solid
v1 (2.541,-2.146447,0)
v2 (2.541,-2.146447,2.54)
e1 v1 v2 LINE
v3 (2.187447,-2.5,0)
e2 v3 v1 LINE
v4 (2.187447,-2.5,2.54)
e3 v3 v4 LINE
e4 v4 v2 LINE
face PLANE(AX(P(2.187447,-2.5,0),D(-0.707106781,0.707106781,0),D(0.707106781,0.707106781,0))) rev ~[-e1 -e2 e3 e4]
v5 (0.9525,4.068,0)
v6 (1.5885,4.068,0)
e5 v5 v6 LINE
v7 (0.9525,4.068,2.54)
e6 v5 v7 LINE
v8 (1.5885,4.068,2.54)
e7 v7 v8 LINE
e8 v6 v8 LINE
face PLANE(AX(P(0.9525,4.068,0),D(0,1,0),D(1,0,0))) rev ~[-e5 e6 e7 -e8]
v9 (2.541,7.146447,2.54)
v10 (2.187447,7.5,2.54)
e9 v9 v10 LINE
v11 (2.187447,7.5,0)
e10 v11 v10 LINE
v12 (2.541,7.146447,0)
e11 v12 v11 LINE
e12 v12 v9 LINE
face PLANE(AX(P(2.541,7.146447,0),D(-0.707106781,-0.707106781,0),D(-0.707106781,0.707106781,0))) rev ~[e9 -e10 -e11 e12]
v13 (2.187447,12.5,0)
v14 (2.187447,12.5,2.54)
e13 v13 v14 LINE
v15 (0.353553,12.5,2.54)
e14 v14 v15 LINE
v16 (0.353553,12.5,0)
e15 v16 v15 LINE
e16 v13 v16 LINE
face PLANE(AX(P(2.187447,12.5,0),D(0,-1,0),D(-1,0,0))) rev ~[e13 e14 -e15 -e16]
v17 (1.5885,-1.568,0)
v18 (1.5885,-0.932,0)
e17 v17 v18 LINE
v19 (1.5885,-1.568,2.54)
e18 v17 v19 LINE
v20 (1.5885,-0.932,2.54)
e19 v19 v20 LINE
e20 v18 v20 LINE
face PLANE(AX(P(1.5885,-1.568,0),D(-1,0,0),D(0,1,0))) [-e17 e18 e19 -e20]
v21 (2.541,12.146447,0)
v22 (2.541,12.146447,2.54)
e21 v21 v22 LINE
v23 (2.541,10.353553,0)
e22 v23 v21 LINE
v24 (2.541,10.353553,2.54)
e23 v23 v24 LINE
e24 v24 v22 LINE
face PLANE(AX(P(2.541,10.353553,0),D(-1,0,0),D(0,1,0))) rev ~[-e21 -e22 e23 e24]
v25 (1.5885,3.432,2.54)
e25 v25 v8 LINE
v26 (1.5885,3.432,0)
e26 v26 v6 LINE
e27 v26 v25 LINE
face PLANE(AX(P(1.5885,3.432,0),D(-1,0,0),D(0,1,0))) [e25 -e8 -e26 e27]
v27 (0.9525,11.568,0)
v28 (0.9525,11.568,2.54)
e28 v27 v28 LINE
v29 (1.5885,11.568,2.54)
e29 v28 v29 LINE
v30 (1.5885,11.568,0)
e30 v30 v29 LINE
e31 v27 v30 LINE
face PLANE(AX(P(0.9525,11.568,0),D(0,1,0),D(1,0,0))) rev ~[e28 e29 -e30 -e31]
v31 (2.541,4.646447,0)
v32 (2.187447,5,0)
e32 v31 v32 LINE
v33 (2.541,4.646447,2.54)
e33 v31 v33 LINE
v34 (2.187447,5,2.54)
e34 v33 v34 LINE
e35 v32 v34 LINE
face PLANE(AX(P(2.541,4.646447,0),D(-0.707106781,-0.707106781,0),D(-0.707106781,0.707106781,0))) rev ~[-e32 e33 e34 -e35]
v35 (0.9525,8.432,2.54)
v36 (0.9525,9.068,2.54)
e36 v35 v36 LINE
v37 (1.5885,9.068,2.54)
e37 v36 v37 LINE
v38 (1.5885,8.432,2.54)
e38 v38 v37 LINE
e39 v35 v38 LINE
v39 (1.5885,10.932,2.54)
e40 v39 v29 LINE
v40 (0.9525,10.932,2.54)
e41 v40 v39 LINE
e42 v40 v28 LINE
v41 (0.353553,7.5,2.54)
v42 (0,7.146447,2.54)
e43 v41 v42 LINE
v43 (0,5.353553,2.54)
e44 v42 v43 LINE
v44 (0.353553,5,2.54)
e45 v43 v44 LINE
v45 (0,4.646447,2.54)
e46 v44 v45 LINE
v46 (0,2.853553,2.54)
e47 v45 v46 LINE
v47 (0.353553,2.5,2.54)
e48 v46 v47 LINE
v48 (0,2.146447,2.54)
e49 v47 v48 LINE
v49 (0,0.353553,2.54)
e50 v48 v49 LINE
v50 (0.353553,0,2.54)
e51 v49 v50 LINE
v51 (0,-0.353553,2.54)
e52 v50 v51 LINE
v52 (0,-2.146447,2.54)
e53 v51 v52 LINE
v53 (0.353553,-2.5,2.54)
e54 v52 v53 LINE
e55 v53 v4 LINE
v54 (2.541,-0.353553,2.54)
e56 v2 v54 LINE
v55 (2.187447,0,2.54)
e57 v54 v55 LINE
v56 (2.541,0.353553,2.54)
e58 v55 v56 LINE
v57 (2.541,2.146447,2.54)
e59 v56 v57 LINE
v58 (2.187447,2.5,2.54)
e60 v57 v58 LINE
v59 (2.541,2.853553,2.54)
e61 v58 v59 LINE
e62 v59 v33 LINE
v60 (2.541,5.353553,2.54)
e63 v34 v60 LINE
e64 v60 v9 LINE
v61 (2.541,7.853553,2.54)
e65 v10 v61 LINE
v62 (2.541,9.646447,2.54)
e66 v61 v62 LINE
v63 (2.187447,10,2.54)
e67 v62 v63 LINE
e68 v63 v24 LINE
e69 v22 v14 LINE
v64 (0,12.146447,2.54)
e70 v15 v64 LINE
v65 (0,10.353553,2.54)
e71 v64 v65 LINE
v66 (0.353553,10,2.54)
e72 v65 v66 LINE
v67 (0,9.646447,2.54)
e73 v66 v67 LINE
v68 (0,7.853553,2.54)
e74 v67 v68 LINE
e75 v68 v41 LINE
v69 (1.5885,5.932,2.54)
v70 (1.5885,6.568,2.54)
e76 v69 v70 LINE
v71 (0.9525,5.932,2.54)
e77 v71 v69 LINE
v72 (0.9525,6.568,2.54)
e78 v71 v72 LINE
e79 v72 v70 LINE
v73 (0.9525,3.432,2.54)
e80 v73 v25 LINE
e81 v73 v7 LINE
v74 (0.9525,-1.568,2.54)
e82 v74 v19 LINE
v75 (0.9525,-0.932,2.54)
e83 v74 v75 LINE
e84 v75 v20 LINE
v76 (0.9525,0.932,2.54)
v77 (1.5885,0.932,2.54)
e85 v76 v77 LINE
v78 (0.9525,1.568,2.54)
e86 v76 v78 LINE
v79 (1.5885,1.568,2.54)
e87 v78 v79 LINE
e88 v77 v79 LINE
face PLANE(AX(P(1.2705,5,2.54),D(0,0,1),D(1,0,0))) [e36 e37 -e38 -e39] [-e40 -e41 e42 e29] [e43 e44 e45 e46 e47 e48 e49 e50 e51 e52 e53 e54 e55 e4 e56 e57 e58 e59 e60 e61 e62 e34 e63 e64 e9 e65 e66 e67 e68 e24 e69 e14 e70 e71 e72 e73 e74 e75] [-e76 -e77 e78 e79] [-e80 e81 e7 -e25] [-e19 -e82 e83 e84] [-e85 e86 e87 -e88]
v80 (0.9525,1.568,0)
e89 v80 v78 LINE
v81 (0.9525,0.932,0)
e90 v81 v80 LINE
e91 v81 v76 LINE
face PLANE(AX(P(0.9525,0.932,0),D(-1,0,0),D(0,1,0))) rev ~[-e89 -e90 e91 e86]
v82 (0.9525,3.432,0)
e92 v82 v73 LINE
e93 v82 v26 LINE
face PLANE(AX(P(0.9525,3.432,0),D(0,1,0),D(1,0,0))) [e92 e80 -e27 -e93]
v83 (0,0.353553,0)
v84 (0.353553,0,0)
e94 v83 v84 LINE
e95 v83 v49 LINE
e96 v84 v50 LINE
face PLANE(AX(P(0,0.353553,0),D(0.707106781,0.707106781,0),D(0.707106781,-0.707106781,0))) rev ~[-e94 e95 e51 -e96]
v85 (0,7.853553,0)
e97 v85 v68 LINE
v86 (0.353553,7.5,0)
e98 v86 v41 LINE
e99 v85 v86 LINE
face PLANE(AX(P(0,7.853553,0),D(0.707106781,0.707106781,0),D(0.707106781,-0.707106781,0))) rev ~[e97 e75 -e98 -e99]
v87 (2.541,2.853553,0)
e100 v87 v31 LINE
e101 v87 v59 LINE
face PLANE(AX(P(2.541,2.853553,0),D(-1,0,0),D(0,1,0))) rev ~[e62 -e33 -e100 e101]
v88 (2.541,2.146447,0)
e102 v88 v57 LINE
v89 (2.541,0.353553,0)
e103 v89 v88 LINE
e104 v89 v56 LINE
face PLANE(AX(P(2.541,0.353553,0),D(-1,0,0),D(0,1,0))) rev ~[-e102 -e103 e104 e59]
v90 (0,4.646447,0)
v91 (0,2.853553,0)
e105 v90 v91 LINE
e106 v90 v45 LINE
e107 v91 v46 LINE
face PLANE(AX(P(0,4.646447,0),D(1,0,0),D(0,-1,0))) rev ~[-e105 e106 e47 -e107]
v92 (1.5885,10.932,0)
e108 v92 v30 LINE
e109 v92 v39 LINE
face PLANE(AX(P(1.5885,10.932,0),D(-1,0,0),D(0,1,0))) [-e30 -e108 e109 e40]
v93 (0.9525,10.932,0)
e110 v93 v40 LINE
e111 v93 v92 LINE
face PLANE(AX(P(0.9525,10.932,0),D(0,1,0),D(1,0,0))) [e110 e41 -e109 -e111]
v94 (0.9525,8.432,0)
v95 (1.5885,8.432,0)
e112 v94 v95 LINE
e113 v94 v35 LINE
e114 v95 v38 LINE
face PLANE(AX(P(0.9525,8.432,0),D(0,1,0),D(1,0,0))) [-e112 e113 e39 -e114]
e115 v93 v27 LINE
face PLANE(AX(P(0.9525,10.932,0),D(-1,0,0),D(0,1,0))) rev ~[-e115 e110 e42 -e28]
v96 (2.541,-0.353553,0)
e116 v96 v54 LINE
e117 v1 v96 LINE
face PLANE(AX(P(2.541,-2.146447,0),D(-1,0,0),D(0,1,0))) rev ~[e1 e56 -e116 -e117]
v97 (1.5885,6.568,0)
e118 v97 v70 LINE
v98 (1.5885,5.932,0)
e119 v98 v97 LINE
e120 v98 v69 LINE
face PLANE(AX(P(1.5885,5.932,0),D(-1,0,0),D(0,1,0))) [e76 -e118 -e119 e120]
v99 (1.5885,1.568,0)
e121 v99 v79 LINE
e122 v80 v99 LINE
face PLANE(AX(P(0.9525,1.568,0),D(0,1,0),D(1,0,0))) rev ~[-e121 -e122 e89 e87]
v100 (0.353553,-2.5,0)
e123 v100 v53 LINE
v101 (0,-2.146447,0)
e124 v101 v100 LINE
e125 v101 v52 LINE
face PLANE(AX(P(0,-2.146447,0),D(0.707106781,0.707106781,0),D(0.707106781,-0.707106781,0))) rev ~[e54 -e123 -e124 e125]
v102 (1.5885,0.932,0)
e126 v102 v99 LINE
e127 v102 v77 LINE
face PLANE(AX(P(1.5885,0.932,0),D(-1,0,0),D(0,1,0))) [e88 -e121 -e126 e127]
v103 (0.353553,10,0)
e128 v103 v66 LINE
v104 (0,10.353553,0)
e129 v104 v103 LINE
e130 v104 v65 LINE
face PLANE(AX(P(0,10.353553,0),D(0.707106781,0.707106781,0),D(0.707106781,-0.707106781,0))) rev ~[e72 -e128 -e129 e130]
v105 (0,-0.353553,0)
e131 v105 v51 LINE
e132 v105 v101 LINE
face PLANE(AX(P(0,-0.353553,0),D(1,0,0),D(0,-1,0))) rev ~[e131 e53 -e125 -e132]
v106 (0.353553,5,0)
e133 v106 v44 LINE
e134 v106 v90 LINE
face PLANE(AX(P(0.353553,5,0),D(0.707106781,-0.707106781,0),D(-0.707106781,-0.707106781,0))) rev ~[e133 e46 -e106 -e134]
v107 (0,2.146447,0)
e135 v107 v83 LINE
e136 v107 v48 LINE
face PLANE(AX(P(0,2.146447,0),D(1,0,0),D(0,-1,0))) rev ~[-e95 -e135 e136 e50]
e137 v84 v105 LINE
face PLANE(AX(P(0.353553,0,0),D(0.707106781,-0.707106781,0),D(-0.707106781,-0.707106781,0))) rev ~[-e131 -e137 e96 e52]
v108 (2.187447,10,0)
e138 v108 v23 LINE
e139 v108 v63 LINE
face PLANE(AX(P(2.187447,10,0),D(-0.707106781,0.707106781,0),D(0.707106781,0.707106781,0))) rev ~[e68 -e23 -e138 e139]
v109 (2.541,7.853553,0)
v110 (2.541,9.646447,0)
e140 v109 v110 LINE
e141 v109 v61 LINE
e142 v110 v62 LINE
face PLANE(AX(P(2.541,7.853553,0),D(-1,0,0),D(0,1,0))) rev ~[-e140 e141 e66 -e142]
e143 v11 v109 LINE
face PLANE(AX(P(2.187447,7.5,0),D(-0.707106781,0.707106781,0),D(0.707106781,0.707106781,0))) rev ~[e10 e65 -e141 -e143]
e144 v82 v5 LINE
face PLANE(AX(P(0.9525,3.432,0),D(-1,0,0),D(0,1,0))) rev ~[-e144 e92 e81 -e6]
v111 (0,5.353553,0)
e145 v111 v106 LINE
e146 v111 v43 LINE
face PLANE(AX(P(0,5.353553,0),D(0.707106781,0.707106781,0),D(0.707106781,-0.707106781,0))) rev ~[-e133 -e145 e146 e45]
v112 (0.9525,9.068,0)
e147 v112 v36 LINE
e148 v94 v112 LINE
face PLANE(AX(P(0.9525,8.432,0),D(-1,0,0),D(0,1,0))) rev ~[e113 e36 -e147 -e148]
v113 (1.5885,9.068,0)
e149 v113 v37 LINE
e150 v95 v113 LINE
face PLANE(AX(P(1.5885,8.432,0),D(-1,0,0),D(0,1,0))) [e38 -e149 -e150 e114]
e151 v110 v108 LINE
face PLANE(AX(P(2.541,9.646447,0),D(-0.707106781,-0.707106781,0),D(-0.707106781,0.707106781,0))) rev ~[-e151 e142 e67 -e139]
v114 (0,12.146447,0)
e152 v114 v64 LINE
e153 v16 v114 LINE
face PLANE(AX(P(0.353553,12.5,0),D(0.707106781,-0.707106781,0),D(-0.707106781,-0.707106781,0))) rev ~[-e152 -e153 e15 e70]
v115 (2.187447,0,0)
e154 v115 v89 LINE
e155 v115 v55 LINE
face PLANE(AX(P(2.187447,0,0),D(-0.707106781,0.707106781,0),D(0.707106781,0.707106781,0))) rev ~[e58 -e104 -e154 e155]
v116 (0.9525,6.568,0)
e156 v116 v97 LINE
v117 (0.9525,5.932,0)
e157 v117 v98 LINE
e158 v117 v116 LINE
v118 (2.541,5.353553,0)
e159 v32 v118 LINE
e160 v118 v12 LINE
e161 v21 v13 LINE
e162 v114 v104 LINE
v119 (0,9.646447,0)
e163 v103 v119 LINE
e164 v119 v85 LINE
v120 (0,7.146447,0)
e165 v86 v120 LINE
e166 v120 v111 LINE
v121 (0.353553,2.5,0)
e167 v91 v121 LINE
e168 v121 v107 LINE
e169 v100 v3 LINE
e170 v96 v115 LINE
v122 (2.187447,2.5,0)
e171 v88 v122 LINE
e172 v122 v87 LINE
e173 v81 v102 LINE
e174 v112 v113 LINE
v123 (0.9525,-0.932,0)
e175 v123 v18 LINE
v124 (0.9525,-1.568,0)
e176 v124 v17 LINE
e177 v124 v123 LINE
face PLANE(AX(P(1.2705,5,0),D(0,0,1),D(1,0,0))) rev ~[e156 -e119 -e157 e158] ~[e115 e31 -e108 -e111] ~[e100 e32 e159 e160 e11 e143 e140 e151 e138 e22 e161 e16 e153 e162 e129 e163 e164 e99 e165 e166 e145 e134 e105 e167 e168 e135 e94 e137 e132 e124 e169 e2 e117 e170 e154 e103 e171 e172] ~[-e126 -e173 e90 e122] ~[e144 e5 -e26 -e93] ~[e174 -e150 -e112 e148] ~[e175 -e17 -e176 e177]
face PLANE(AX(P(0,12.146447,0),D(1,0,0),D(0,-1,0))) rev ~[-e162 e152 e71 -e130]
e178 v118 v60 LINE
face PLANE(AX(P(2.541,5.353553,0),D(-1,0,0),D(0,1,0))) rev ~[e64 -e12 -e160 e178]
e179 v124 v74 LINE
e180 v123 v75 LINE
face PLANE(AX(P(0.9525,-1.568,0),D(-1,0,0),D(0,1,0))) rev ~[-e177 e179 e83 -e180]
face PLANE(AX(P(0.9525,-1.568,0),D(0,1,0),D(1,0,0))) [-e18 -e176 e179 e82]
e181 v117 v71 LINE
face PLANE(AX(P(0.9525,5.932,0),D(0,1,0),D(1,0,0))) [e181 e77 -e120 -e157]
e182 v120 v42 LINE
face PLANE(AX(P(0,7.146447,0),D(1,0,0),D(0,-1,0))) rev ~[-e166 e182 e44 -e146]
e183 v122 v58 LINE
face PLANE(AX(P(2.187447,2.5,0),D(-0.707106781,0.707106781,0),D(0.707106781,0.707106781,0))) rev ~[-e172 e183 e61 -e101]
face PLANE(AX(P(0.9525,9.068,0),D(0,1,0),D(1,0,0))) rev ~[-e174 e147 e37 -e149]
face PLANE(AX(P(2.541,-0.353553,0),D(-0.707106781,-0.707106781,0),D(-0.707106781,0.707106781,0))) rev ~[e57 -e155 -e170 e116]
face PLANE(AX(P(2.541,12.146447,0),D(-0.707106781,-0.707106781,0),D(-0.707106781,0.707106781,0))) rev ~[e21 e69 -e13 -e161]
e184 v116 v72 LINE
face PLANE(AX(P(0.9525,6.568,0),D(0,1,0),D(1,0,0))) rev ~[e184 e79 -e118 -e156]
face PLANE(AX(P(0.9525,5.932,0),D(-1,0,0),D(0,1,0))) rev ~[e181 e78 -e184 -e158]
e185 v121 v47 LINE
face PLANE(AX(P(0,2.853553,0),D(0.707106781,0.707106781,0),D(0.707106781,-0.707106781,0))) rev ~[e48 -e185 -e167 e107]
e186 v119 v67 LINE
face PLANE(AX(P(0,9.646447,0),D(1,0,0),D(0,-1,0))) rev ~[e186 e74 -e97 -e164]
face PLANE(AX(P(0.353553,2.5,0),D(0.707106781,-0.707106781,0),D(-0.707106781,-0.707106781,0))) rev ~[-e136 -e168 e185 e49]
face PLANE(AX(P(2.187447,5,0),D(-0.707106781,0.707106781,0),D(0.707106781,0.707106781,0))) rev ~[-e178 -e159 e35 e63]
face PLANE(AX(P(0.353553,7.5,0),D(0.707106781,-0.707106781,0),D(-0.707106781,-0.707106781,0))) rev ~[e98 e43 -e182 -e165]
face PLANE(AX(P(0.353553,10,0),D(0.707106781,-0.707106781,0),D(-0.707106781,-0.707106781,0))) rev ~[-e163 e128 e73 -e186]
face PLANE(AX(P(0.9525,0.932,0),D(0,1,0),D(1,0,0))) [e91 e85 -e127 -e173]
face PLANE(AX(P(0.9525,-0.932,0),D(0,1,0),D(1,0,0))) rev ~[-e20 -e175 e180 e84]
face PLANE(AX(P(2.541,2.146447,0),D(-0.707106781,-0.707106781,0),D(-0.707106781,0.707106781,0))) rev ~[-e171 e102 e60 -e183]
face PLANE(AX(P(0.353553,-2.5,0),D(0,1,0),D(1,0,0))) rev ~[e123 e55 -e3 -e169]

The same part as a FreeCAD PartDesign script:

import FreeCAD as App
import Part
import Sketcher

V = App.Vector
Q = App.Units.Quantity


def add_polygon(sketch, points):
    """Adds a closed chain of lines whose ends are joined by coincident constraints."""
    first, n = sketch.GeometryCount, len(points)
    for a, b in zip(points, points[1:] + points[:1]):
        sketch.addGeometry(Part.LineSegment(App.Vector(*a, 0), App.Vector(*b, 0)), False)
    for i in range(n):
        sketch.addConstraint(Sketcher.Constraint("Coincident", first + i, 2, first + (i + 1) % n, 1))

doc = App.newDocument("Part")
body = doc.addObject("PartDesign::Body", "Body")

sketch1 = body.newObject("Sketcher::SketchObject", "Sketch")
sketch1.AttachmentSupport = (doc.getObject("XY_Plane"), [""])
sketch1.MapMode = "FlatFace"
add_polygon(sketch1, [(0, 2.1), (0, 0.4), (0.4, 0), (0, -0.4), (0, -2.1), (0.4, -2.5), (2.2, -2.5), (2.5, -2.1), (2.5, -0.4), (2.2, 0), (2.5, 0.4), (2.5, 2.1), (2.2, 2.5), (2.5, 2.9), (2.5, 4.6), (2.2, 5), (2.5, 5.4), (2.5, 7.1), (2.2, 7.5), (2.5, 7.9), (2.5, 9.6), (2.2, 10), (2.5, 10.4), (2.5, 12.1), (2.2, 12.5), (0.4, 12.5), (0, 12.1), (0, 10.4), (0.4, 10), (0, 9.6), (0, 7.9), (0.4, 7.5), (0, 7.1), (0, 5.4), (0.4, 5), (0, 4.6), (0, 2.9), (0.4, 2.5)])
add_polygon(sketch1, [(1.6, -1.6), (1, -1.6), (1, -0.9), (1.6, -0.9)])
add_polygon(sketch1, [(1.6, 0.9), (1, 0.9), (1, 1.6), (1.6, 1.6)])
add_polygon(sketch1, [(1.6, 3.4), (1, 3.4), (1, 4.1), (1.6, 4.1)])
add_polygon(sketch1, [(1.6, 5.9), (1, 5.9), (1, 6.6), (1.6, 6.6)])
add_polygon(sketch1, [(1.6, 8.4), (1, 8.4), (1, 9.1), (1.6, 9.1)])
add_polygon(sketch1, [(1.6, 10.9), (1, 10.9), (1, 11.6), (1.6, 11.6)])
sketch1.addConstraint(Sketcher.Constraint("Vertical", 0))
sketch1.addConstraint(Sketcher.Constraint("Vertical", 3))
sketch1.addConstraint(Sketcher.Constraint("Horizontal", 5))
sketch1.addConstraint(Sketcher.Constraint("Vertical", 7))
sketch1.addConstraint(Sketcher.Constraint("Vertical", 10))
sketch1.addConstraint(Sketcher.Constraint("Vertical", 13))
sketch1.addConstraint(Sketcher.Constraint("Vertical", 16))
sketch1.addConstraint(Sketcher.Constraint("Vertical", 19))
sketch1.addConstraint(Sketcher.Constraint("Vertical", 22))
sketch1.addConstraint(Sketcher.Constraint("Horizontal", 24))
sketch1.addConstraint(Sketcher.Constraint("Vertical", 26))
sketch1.addConstraint(Sketcher.Constraint("Vertical", 29))
sketch1.addConstraint(Sketcher.Constraint("Vertical", 32))
sketch1.addConstraint(Sketcher.Constraint("Vertical", 35))
sketch1.addConstraint(Sketcher.Constraint("Horizontal", 38))
sketch1.addConstraint(Sketcher.Constraint("Vertical", 39))
sketch1.addConstraint(Sketcher.Constraint("Horizontal", 40))
sketch1.addConstraint(Sketcher.Constraint("Vertical", 41))
sketch1.addConstraint(Sketcher.Constraint("Horizontal", 42))
sketch1.addConstraint(Sketcher.Constraint("Vertical", 43))
sketch1.addConstraint(Sketcher.Constraint("Horizontal", 44))
sketch1.addConstraint(Sketcher.Constraint("Vertical", 45))
sketch1.addConstraint(Sketcher.Constraint("Horizontal", 46))
sketch1.addConstraint(Sketcher.Constraint("Vertical", 47))
sketch1.addConstraint(Sketcher.Constraint("Horizontal", 48))
sketch1.addConstraint(Sketcher.Constraint("Vertical", 49))
sketch1.addConstraint(Sketcher.Constraint("Horizontal", 50))
sketch1.addConstraint(Sketcher.Constraint("Vertical", 51))
sketch1.addConstraint(Sketcher.Constraint("Horizontal", 52))
sketch1.addConstraint(Sketcher.Constraint("Vertical", 53))
sketch1.addConstraint(Sketcher.Constraint("Horizontal", 54))
sketch1.addConstraint(Sketcher.Constraint("Vertical", 55))
sketch1.addConstraint(Sketcher.Constraint("Horizontal", 56))
sketch1.addConstraint(Sketcher.Constraint("Vertical", 57))
sketch1.addConstraint(Sketcher.Constraint("Horizontal", 58))
sketch1.addConstraint(Sketcher.Constraint("Vertical", 59))
sketch1.addConstraint(Sketcher.Constraint("Horizontal", 60))
sketch1.addConstraint(Sketcher.Constraint("Vertical", 61))
sketch1.addConstraint(Sketcher.Constraint("Symmetric", 0, 2, 2, 2, -1, 1))
sketch1.addConstraint(Sketcher.Constraint("Symmetric", 7, 2, 9, 2, -1))
sketch1.addConstraint(Sketcher.Constraint("Symmetric", 5, 2, 11, 2, -1))
sketch1.addConstraint(Sketcher.Constraint("Symmetric", 4, 2, 36, 2, -1))
sketch1.addConstraint(Sketcher.Constraint("Symmetric", 3, 2, 37, 2, -1))
sketch1.addConstraint(Sketcher.Constraint("Symmetric", 39, 2, 42, 2, -1))
sketch1.addConstraint(Sketcher.Constraint("Symmetric", 41, 2, 44, 2, -1))
sketch1.addConstraint(Sketcher.Constraint("PointOnObject", 1, 2, -1))
sketch1.addConstraint(Sketcher.Constraint("PointOnObject", 8, 2, -1))
sketch1.addConstraint(Sketcher.Constraint("PointOnObject", 25, 2, -2))
sketch1.addConstraint(Sketcher.Constraint("PointOnObject", 28, 2, -2))
sketch1.addConstraint(Sketcher.Constraint("PointOnObject", 31, 2, -2))
sketch1.addConstraint(Sketcher.Constraint("PointOnObject", 34, 2, -2))
sketch1.addConstraint(Sketcher.Constraint("Perpendicular", 1, 2))
sketch1.addConstraint(Sketcher.Constraint("Perpendicular", 2, 4))
sketch1.addConstraint(Sketcher.Constraint("Perpendicular", 4, 6))
sketch1.addConstraint(Sketcher.Constraint("Perpendicular", 6, 8))
sketch1.addConstraint(Sketcher.Constraint("Perpendicular", 9, 11))
sketch1.addConstraint(Sketcher.Constraint("Perpendicular", 11, 12))
sketch1.addConstraint(Sketcher.Constraint("Perpendicular", 12, 14))
sketch1.addConstraint(Sketcher.Constraint("Perpendicular", 14, 15))
sketch1.addConstraint(Sketcher.Constraint("Perpendicular", 15, 17))
sketch1.addConstraint(Sketcher.Constraint("Perpendicular", 17, 18))
sketch1.addConstraint(Sketcher.Constraint("Perpendicular", 18, 20))
sketch1.addConstraint(Sketcher.Constraint("Perpendicular", 20, 21))
sketch1.addConstraint(Sketcher.Constraint("Perpendicular", 21, 23))
sketch1.addConstraint(Sketcher.Constraint("Perpendicular", 23, 25))
sketch1.addConstraint(Sketcher.Constraint("Perpendicular", 25, 27))
sketch1.addConstraint(Sketcher.Constraint("Perpendicular", 27, 28))
sketch1.addConstraint(Sketcher.Constraint("Perpendicular", 28, 30))
sketch1.addConstraint(Sketcher.Constraint("Perpendicular", 30, 31))
sketch1.addConstraint(Sketcher.Constraint("Perpendicular", 31, 33))
sketch1.addConstraint(Sketcher.Constraint("Perpendicular", 33, 34))
sketch1.addConstraint(Sketcher.Constraint("Perpendicular", 34, 36))
sketch1.addConstraint(Sketcher.Constraint("Horizontal", 3, 2, 6, 2))
sketch1.addConstraint(Sketcher.Constraint("Horizontal", 2, 2, 7, 2))
sketch1.addConstraint(Sketcher.Constraint("Horizontal", 22, 2, 25, 2))
sketch1.addConstraint(Sketcher.Constraint("Horizontal", 21, 2, 26, 2))
sketch1.addConstraint(Sketcher.Constraint("Horizontal", 20, 2, 27, 2))
sketch1.addConstraint(Sketcher.Constraint("Horizontal", 19, 2, 28, 2))
sketch1.addConstraint(Sketcher.Constraint("Horizontal", 18, 2, 29, 2))
sketch1.addConstraint(Sketcher.Constraint("Horizontal", 17, 2, 30, 2))
sketch1.addConstraint(Sketcher.Constraint("Horizontal", 16, 2, 31, 2))
sketch1.addConstraint(Sketcher.Constraint("Horizontal", 15, 2, 32, 2))
sketch1.addConstraint(Sketcher.Constraint("Horizontal", 14, 2, 33, 2))
sketch1.addConstraint(Sketcher.Constraint("Horizontal", 13, 2, 34, 2))
sketch1.addConstraint(Sketcher.Constraint("Horizontal", 12, 2, 35, 2))
sketch1.addConstraint(Sketcher.Constraint("Vertical", 1, 2, 4, 2))
sketch1.addConstraint(Sketcher.Constraint("Vertical", 11, 2, 14, 2))
sketch1.addConstraint(Sketcher.Constraint("Vertical", 14, 2, 17, 2))
sketch1.addConstraint(Sketcher.Constraint("Vertical", 17, 2, 20, 2))
sketch1.addConstraint(Sketcher.Constraint("Vertical", 20, 2, 23, 2))
sketch1.addConstraint(Sketcher.Constraint("Vertical", 43, 2, 46, 2))
sketch1.addConstraint(Sketcher.Constraint("Vertical", 45, 2, 48, 2))
sketch1.addConstraint(Sketcher.Constraint("Vertical", 47, 2, 50, 2))
sketch1.addConstraint(Sketcher.Constraint("Vertical", 49, 2, 52, 2))
sketch1.addConstraint(Sketcher.Constraint("Vertical", 51, 2, 54, 2))
sketch1.addConstraint(Sketcher.Constraint("Vertical", 53, 2, 56, 2))
sketch1.addConstraint(Sketcher.Constraint("Vertical", 55, 2, 58, 2))
sketch1.addConstraint(Sketcher.Constraint("Vertical", 57, 2, 60, 2))
sketch1.addConstraint(Sketcher.Constraint("Equal", 10, 13))
sketch1.addConstraint(Sketcher.Constraint("Equal", 13, 16))
sketch1.addConstraint(Sketcher.Constraint("Equal", 16, 19))
sketch1.addConstraint(Sketcher.Constraint("Equal", 19, 22))
sketch1.addConstraint(Sketcher.Constraint("Equal", 60, 39))
sketch1.addConstraint(Sketcher.Constraint("Equal", 45, 47))
sketch1.addConstraint(Sketcher.Constraint("Equal", 49, 51))
sketch1.addConstraint(Sketcher.Constraint("Equal", 53, 55))
sketch1.addConstraint(Sketcher.Constraint("Equal", 57, 59))
sketch1.addConstraint(Sketcher.Constraint("DistanceY", -1, 1, 14, 2, Q("5 mm")))
sketch1.addConstraint(Sketcher.Constraint("Distance", 1, Q("0.5 mm")))
sketch1.addConstraint(Sketcher.Constraint("DistanceX", 38, 2, 38, 1, Q("0.636 mm")))
sketch1.addConstraint(Sketcher.Constraint("DistanceX", -1, 1, 6, 2, Q("2.541 mm")))
sketch1.addConstraint(Sketcher.Constraint("DistanceY", 38, 2, -1, 1, Q("1.568 mm")))
sketch1.addConstraint(Sketcher.Constraint("DistanceY", -1, 1, 46, 2, Q("3.432 mm")))
sketch1.addConstraint(Sketcher.Constraint("DistanceY", -1, 1, 50, 2, Q("5.932 mm")))
sketch1.addConstraint(Sketcher.Constraint("DistanceY", -1, 1, 54, 2, Q("8.432 mm")))
sketch1.addConstraint(Sketcher.Constraint("DistanceY", -1, 1, 58, 2, Q("10.932 mm")))
sketch1.addConstraint(Sketcher.Constraint("DistanceX", -1, 1, 38, 2, Q("0.9525 mm")))
pad1 = body.newObject("PartDesign::Pad", "Pad")
pad1.Profile = sketch1
pad1.Length = 2.54

doc.recompute()
